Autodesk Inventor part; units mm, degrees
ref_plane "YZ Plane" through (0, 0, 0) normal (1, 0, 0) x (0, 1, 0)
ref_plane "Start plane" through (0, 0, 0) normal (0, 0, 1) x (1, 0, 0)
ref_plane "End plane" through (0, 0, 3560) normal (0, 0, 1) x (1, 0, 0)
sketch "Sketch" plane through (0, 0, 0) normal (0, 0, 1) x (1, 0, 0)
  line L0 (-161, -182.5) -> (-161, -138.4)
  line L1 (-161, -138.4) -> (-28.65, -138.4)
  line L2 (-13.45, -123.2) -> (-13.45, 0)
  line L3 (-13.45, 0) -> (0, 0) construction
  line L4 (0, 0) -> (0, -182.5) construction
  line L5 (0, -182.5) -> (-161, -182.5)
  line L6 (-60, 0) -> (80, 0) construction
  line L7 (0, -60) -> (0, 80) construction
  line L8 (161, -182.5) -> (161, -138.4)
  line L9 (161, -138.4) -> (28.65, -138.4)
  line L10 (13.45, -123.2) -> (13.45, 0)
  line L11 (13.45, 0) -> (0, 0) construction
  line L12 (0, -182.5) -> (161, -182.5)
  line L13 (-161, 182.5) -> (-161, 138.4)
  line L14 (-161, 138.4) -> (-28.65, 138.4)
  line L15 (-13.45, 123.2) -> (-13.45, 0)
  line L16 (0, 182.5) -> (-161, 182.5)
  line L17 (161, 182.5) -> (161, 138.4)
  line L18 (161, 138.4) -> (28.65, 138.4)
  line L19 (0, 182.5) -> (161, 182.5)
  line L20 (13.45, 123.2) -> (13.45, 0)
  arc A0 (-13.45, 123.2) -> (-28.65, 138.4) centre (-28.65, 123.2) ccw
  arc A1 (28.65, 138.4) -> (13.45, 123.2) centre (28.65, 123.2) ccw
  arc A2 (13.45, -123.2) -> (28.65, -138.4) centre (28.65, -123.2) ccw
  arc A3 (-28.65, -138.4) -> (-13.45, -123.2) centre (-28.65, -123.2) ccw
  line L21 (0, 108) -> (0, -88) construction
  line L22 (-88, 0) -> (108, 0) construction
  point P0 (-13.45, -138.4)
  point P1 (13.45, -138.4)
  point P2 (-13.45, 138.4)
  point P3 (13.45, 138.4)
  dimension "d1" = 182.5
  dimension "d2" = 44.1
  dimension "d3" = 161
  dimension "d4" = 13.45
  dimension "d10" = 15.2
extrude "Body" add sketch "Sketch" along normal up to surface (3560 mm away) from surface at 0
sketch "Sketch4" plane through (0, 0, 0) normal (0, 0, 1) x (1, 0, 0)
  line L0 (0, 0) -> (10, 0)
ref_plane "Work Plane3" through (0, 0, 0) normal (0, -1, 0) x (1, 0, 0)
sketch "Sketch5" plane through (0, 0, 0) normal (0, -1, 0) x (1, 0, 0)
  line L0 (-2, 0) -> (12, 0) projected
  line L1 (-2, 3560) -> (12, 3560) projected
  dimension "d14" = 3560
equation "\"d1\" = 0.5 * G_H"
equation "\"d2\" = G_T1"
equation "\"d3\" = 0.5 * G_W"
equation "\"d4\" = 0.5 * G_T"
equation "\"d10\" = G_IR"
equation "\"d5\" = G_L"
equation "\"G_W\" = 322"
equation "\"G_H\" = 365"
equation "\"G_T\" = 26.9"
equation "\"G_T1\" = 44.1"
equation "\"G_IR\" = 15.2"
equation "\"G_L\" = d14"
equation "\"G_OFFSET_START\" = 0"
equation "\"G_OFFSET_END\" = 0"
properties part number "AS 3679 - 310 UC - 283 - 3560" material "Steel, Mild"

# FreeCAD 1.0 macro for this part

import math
import FreeCAD as App
import Part
import Sketcher
Q = App.Units.Quantity

doc = App.newDocument("Part")
body = doc.addObject("PartDesign::Body", "Body")

sketch1 = doc.addObject("Sketcher::SketchObject", "Sketch")
body.addObject(sketch1)
sketch1.AttachmentSupport = (doc.XY_Plane, [""])
sketch1.MapMode = "FlatFace"
sketch1.addGeometry([
    Part.LineSegment(App.Vector(-161, -138, 0), App.Vector(-161, -182, 0)),
    Part.LineSegment(App.Vector(-161, -182, 0), App.Vector(161, -182, 0)),
    Part.LineSegment(App.Vector(161, -182, 0), App.Vector(161, -138, 0)),
    Part.LineSegment(App.Vector(161, -138, 0), App.Vector(29, -138, 0)),
    Part.ArcOfCircle(Part.Circle(App.Vector(29, -123, 0), App.Vector(0, 0, 1), 15), math.radians(180), math.radians(270)),
    Part.LineSegment(App.Vector(13, -123, 0), App.Vector(13, 123, 0)),
    Part.ArcOfCircle(Part.Circle(App.Vector(29, 123, 0), App.Vector(0, 0, 1), 15), math.radians(90), math.radians(180)),
    Part.LineSegment(App.Vector(29, 138, 0), App.Vector(161, 138, 0)),
    Part.LineSegment(App.Vector(161, 138, 0), App.Vector(161, 182, 0)),
    Part.LineSegment(App.Vector(161, 182, 0), App.Vector(-161, 182, 0)),
    Part.LineSegment(App.Vector(-161, 182, 0), App.Vector(-161, 138, 0)),
    Part.LineSegment(App.Vector(-161, 138, 0), App.Vector(-29, 138, 0)),
    Part.ArcOfCircle(Part.Circle(App.Vector(-29, 123, 0), App.Vector(0, 0, 1), 15), math.radians(0), math.radians(90)),
    Part.LineSegment(App.Vector(-13, 123, 0), App.Vector(-13, -123, 0)),
    Part.ArcOfCircle(Part.Circle(App.Vector(-29, -123, 0), App.Vector(0, 0, 1), 15), math.radians(-90), math.radians(0)),
    Part.LineSegment(App.Vector(-29, -138, 0), App.Vector(-161, -138, 0)),
], False)
sketch1.addConstraint([
    Sketcher.Constraint("Coincident", 0, 2, 1, 1),
    Sketcher.Constraint("Coincident", 1, 2, 2, 1),
    Sketcher.Constraint("Coincident", 2, 2, 3, 1),
    Sketcher.Constraint("Tangent", 3, 2, 4, 2),
    Sketcher.Constraint("Tangent", 4, 1, 5, 1),
    Sketcher.Constraint("Tangent", 5, 2, 6, 2),
    Sketcher.Constraint("Tangent", 6, 1, 7, 1),
    Sketcher.Constraint("Coincident", 7, 2, 8, 1),
    Sketcher.Constraint("Coincident", 8, 2, 9, 1),
    Sketcher.Constraint("Coincident", 9, 2, 10, 1),
    Sketcher.Constraint("Coincident", 10, 2, 11, 1),
    Sketcher.Constraint("Tangent", 11, 2, 12, 2),
    Sketcher.Constraint("Tangent", 12, 1, 13, 1),
    Sketcher.Constraint("Tangent", 13, 2, 14, 2),
    Sketcher.Constraint("Tangent", 14, 1, 15, 1),
    Sketcher.Constraint("Coincident", 15, 2, 0, 1),
    Sketcher.Constraint("Vertical", 0),
    Sketcher.Constraint("Horizontal", 1),
    Sketcher.Constraint("Vertical", 2),
    Sketcher.Constraint("Horizontal", 3),
    Sketcher.Constraint("Vertical", 5),
    Sketcher.Constraint("Horizontal", 7),
    Sketcher.Constraint("Vertical", 8),
    Sketcher.Constraint("Horizontal", 9),
    Sketcher.Constraint("Vertical", 10),
    Sketcher.Constraint("Horizontal", 11),
    Sketcher.Constraint("Vertical", 13),
    Sketcher.Constraint("Horizontal", 15),
    Sketcher.Constraint("Equal", 4, 6),
    Sketcher.Constraint("Equal", 6, 12),
    Sketcher.Constraint("Equal", 12, 14),
    Sketcher.Constraint("Symmetric", 4, 3, 12, 3, -1, 1),
    Sketcher.Constraint("Symmetric", 0, 2, 8, 2, -1, 1),
    Sketcher.Constraint("Symmetric", 7, 2, 10, 2, -2),
    Sketcher.Constraint("Symmetric", 2, 2, 15, 2, -2),
    Sketcher.Constraint("Radius", 4, Q("15.2 mm")),
    Sketcher.Constraint("DistanceY", 0, 2, 0, 1, Q("44.1 mm")),
    Sketcher.Constraint("DistanceX", 0, 2, -1, 1, Q("161 mm")),
    Sketcher.Constraint("DistanceY", 0, 2, -1, 1, Q("182.5 mm")),
    Sketcher.Constraint("DistanceX", -1, 1, 4, 1, Q("13.45 mm")),
])
pad1 = doc.addObject("PartDesign::Pad", "Pad")
body.addObject(pad1)
pad1.Profile = sketch1
pad1.Length = 3560

doc.recompute()
